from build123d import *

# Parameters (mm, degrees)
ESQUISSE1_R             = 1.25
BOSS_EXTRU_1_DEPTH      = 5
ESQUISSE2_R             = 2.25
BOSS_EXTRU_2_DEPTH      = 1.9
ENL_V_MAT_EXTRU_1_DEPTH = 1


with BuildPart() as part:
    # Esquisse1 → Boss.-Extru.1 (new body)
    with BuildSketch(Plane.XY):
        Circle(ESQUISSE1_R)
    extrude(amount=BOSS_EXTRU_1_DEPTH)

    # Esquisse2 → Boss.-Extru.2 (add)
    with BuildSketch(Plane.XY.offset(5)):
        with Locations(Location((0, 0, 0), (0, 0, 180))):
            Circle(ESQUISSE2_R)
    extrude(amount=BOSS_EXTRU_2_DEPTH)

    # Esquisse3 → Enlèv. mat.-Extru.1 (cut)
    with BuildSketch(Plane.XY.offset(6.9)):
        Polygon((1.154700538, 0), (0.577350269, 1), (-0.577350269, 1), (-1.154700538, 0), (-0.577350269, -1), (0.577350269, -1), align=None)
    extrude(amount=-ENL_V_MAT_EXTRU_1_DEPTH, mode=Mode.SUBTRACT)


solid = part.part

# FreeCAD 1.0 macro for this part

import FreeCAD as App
import Part
import Sketcher
from FreeCAD import Vector
Q = App.Units.Quantity

doc = App.newDocument("Part")
body = doc.addObject("PartDesign::Body", "Body")

sketch1 = body.newObject("Sketcher::SketchObject", "Sketch")
sketch1.AttachmentSupport = (doc.getObject("XY_Plane"), [""])
sketch1.MapMode = "FlatFace"
sketch1.addGeometry(Part.Circle(Vector(0, 0, 0), Vector(0, 0, 1), 1.2), False)
sketch1.addConstraint([
    Sketcher.Constraint("Coincident", 0, 3, -1, 1),
    Sketcher.Constraint("Diameter", 0, Q("2.5 mm")),
])
pad1 = body.newObject("PartDesign::Pad", "Pad")
pad1.Profile = sketch1
pad1.Length = 5

sketch2 = body.newObject("Sketcher::SketchObject", "Sketch001")
sketch2.AttachmentSupport = (doc.getObject("XY_Plane"), [""])
sketch2.MapMode = "FlatFace"
sketch2.AttachmentOffset = App.Placement(Vector(0, 0, 5), App.Rotation())
sketch2.addGeometry(Part.Circle(Vector(0, 0, 0), Vector(0, 0, 1), 2.2), False)
sketch2.addConstraint([
    Sketcher.Constraint("Coincident", 0, 3, -1, 1),
    Sketcher.Constraint("Diameter", 0, Q("4.5 mm")),
])
pad2 = body.newObject("PartDesign::Pad", "Pad001")
pad2.Profile = sketch2
pad2.Length = 1.9

sketch3 = body.newObject("Sketcher::SketchObject", "Sketch002")
sketch3.AttachmentSupport = (doc.getObject("XY_Plane"), [""])
sketch3.MapMode = "FlatFace"
sketch3.AttachmentOffset = App.Placement(Vector(0, 0, 6.9), App.Rotation())
sketch3.addGeometry([
    Part.LineSegment(Vector(1.2, 0, 0), Vector(0.6, 1, 0)),
    Part.LineSegment(Vector(0.6, 1, 0), Vector(-0.6, 1, 0)),
    Part.LineSegment(Vector(-0.6, 1, 0), Vector(-1.2, 0, 0)),
    Part.LineSegment(Vector(-1.2, 0, 0), Vector(-0.6, -1, 0)),
    Part.LineSegment(Vector(-0.6, -1, 0), Vector(0.6, -1, 0)),
    Part.LineSegment(Vector(0.6, -1, 0), Vector(1.2, 0, 0)),
], False)
sketch3.addConstraint([
    Sketcher.Constraint("Coincident", 0, 2, 1, 1),
    Sketcher.Constraint("Coincident", 1, 2, 2, 1),
    Sketcher.Constraint("Coincident", 2, 2, 3, 1),
    Sketcher.Constraint("Coincident", 3, 2, 4, 1),
    Sketcher.Constraint("Coincident", 4, 2, 5, 1),
    Sketcher.Constraint("Coincident", 5, 2, 0, 1),
    Sketcher.Constraint("Horizontal", 1),
    Sketcher.Constraint("Horizontal", 4),
    Sketcher.Constraint("Symmetric", 0, 2, 3, 2, -1, 1),
    Sketcher.Constraint("Symmetric", 2, 2, 5, 2, -1, 1),
    Sketcher.Constraint("PointOnObject", 2, 2, -1),
    Sketcher.Constraint("Parallel", 2, 5),
    Sketcher.Constraint("Vertical", 1, 2, 3, 2),
    Sketcher.Constraint("Angle", 0, Q("120 deg")),
    Sketcher.Constraint("DistanceY", -1, 1, 0, 2, Q("1 mm")),
    Sketcher.Constraint("DistanceX", 1, 2, 1, 1, Q("1.154701 mm")),
])
pocket1 = body.newObject("PartDesign::Pocket", "Pocket")
pocket1.Profile = sketch3
pocket1.Length = 1

doc.recompute()
